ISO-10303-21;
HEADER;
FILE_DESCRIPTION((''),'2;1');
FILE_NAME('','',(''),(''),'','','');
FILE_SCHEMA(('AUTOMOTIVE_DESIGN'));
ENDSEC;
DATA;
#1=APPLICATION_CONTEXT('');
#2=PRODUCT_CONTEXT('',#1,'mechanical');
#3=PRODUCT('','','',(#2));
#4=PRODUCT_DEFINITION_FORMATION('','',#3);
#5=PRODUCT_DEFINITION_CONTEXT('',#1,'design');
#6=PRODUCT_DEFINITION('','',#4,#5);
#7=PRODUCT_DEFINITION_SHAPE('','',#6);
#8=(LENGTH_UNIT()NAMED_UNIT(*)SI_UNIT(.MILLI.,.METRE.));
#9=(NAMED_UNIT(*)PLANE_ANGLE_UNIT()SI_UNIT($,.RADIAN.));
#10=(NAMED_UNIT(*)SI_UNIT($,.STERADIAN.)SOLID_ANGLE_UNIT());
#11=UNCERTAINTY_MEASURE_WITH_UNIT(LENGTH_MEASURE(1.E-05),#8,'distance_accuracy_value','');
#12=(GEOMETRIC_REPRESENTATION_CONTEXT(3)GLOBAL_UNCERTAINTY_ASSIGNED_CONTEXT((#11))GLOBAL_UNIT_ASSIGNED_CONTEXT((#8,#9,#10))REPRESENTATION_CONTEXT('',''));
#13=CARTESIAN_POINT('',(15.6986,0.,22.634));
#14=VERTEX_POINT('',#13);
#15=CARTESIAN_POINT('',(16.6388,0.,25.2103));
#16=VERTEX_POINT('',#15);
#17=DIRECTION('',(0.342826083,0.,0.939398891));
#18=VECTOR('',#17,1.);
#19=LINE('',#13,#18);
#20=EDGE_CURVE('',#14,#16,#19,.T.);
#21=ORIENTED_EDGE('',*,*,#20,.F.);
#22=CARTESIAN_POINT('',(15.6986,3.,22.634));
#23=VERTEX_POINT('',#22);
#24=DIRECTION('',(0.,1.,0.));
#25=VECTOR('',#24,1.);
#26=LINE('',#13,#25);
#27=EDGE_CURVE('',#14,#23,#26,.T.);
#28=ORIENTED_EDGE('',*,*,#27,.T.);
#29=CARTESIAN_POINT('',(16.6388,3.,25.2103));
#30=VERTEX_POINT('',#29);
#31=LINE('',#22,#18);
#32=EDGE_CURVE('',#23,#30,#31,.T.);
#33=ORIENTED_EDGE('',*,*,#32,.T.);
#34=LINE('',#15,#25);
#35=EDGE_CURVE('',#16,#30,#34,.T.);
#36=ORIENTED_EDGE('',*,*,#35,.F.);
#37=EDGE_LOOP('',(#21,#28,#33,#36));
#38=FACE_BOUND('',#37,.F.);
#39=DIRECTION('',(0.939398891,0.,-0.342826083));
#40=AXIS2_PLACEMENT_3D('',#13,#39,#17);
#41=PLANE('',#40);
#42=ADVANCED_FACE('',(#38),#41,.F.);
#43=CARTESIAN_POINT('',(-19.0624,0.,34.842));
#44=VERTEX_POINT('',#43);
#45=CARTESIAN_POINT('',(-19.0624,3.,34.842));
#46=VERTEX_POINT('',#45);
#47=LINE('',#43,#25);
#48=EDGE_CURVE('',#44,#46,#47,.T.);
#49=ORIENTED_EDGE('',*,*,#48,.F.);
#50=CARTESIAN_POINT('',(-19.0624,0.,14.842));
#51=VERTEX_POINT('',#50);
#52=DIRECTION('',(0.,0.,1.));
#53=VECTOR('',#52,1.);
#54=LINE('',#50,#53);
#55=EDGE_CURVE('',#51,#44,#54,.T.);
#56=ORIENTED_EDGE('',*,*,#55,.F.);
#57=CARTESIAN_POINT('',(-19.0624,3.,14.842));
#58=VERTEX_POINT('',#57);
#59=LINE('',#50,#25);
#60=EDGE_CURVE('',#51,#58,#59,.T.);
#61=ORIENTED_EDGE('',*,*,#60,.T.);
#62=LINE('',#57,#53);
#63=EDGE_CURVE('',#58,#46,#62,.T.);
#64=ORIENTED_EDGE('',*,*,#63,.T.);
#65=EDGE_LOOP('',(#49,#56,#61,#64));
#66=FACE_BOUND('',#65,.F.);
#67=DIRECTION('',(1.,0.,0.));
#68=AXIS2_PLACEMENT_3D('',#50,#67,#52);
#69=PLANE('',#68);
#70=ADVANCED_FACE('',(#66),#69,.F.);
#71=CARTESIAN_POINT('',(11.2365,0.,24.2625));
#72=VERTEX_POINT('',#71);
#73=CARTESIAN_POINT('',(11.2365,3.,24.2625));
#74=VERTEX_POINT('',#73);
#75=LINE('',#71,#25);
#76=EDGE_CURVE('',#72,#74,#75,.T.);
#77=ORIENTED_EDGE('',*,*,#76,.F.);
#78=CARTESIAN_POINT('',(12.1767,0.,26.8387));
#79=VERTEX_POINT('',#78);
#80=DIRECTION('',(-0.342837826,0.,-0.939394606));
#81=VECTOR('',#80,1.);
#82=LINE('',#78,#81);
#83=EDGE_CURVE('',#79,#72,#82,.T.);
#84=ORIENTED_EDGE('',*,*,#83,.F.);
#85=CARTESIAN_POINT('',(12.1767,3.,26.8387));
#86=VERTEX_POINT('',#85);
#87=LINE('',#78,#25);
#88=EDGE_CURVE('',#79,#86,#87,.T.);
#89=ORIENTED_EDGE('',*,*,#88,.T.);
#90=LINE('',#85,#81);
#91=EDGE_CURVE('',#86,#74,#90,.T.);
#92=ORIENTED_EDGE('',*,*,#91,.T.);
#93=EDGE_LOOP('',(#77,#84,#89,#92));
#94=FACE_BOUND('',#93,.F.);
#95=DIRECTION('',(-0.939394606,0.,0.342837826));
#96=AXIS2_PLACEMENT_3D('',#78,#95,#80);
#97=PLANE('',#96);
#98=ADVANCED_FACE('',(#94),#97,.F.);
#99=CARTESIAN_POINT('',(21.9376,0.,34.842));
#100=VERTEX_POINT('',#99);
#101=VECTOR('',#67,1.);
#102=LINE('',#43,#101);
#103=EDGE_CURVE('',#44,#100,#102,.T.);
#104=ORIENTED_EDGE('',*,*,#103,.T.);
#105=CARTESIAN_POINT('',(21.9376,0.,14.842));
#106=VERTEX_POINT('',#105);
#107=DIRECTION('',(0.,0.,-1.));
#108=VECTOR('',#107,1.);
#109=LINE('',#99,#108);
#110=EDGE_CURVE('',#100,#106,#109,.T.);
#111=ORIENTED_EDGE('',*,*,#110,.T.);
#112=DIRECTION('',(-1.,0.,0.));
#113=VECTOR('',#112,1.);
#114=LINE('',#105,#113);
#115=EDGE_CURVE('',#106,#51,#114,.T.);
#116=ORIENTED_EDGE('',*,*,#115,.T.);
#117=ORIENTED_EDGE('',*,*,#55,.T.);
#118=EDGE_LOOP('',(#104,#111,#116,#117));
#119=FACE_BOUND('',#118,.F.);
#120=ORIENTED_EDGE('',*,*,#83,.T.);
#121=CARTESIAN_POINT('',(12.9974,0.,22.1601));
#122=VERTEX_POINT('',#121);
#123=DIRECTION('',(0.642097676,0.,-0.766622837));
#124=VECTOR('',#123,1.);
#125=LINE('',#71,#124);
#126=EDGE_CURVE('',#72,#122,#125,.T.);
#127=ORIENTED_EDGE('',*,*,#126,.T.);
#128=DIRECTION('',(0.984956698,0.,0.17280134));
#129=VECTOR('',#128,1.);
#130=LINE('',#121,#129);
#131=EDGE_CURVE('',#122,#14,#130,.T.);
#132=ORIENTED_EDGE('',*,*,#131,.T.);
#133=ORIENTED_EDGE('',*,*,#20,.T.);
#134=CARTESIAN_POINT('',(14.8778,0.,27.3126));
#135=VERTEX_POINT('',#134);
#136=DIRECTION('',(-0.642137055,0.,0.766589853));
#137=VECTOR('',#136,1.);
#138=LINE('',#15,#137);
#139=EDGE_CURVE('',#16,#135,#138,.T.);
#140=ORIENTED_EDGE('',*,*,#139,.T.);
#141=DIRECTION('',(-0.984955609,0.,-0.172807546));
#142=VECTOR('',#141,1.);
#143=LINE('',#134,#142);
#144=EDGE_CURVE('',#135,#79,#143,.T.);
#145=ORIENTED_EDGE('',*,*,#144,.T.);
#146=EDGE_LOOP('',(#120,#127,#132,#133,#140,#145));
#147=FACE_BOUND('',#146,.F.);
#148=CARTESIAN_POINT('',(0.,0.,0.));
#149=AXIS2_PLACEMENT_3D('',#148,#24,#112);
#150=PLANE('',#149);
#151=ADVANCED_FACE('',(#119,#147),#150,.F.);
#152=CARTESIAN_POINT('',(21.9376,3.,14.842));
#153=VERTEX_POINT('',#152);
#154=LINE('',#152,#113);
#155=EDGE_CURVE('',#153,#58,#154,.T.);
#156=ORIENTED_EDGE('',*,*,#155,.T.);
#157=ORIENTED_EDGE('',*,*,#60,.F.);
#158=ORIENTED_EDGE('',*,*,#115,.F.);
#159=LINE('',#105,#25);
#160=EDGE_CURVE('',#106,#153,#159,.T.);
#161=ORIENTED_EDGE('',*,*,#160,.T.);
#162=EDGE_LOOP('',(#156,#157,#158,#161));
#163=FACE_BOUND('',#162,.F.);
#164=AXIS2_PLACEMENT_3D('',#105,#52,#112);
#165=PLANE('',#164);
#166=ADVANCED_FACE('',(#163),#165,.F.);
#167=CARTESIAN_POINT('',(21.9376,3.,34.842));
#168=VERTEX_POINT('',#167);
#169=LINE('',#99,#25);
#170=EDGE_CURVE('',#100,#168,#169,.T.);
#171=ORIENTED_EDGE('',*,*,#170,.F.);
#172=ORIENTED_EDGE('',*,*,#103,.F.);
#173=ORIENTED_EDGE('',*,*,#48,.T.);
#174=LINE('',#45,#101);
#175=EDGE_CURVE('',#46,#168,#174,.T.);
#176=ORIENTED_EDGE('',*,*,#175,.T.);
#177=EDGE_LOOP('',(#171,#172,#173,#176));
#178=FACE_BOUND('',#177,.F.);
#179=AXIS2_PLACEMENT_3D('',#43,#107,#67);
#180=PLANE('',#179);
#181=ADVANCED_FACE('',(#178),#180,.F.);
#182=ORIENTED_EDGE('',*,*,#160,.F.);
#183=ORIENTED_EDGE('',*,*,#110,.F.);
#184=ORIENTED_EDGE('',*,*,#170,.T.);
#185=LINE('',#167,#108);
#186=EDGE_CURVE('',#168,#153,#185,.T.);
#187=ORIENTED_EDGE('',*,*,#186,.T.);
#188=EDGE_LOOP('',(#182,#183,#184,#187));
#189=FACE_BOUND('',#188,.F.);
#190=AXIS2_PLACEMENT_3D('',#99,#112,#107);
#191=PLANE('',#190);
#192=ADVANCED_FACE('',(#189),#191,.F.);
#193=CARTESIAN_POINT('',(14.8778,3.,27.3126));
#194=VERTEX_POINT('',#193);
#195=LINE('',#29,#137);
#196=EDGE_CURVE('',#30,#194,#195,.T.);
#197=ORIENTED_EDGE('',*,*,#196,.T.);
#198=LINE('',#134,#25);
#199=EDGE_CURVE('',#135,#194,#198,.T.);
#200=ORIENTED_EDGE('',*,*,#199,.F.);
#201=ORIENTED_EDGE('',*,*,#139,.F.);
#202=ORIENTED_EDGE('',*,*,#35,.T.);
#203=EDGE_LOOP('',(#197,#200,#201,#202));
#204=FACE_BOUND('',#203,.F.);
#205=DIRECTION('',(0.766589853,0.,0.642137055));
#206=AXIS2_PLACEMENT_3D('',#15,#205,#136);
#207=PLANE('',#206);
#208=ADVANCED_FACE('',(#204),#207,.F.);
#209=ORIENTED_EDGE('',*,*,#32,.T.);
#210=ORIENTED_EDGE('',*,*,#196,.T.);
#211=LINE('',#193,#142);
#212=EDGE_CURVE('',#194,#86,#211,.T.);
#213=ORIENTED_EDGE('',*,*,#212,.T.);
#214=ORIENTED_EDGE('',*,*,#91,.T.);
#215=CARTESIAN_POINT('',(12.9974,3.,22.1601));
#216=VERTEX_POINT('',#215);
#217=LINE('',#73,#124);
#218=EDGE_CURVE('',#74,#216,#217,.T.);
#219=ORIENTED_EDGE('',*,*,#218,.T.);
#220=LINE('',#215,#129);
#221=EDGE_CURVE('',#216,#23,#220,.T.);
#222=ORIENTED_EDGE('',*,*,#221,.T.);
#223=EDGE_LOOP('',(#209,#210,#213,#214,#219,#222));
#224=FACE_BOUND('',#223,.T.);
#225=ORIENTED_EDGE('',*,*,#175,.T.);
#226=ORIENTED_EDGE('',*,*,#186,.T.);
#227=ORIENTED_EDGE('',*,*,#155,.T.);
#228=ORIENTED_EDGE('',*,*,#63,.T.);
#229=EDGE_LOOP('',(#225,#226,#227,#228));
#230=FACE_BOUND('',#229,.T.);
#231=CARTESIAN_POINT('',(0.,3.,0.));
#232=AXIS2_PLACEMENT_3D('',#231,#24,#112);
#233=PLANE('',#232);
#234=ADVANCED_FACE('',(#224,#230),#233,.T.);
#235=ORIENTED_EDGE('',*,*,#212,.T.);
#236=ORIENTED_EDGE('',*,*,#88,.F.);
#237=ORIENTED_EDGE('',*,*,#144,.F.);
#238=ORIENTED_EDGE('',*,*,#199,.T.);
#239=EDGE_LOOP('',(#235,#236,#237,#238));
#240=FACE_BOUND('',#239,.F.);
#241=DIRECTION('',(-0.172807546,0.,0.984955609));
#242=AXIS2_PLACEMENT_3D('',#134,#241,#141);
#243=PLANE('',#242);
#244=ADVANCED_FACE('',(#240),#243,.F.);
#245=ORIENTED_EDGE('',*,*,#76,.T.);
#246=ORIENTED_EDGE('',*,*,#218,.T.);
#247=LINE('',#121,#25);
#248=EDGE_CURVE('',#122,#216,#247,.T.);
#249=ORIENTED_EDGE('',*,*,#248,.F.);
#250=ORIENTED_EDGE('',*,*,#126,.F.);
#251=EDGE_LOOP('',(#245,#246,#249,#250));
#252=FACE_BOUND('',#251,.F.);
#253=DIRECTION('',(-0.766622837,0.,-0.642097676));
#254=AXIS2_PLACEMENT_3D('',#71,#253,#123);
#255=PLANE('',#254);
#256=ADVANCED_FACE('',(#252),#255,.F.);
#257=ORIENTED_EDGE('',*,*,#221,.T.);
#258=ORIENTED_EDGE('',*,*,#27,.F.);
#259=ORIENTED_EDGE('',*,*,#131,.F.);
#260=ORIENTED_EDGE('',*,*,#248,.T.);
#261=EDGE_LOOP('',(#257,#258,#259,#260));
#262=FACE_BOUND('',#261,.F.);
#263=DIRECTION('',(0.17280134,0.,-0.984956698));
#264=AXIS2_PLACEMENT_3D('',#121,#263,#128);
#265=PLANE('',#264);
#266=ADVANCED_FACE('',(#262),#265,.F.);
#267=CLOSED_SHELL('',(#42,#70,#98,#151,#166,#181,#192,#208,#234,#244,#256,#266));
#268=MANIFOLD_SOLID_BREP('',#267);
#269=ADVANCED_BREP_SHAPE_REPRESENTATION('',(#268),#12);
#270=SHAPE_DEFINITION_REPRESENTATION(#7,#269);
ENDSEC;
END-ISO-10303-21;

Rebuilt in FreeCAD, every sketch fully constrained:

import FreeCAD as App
import Part
import Sketcher
from FreeCAD import Vector
Q = App.Units.Quantity

doc = App.newDocument("Part")
body = doc.addObject("PartDesign::Body", "Body")

# Sketch on XZ plane
sketch1 = body.newObject("Sketcher::SketchObject", "Sketch")
sketch1.AttachmentSupport = (doc.getObject("XZ_Plane"), [""])
sketch1.MapMode = "FlatFace"
sketch1.addGeometry([
    Part.LineSegment(Vector(-19.1, 14.8, 0), Vector(-19.1, 34.8, 0)),  # 0
    Part.LineSegment(Vector(-19.1, 34.8, 0), Vector(21.9, 34.8, 0)),  # 1
    Part.LineSegment(Vector(21.9, 34.8, 0), Vector(21.9, 14.8, 0)),  # 2
    Part.LineSegment(Vector(21.9, 14.8, 0), Vector(-19.1, 14.8, 0)),  # 3
    Part.LineSegment(Vector(12.2, 26.8, 0), Vector(11.2, 24.3, 0)),  # 4
    Part.LineSegment(Vector(11.2, 24.3, 0), Vector(13, 22.2, 0)),  # 5
    Part.LineSegment(Vector(13, 22.2, 0), Vector(15.7, 22.6, 0)),  # 6
    Part.LineSegment(Vector(15.7, 22.6, 0), Vector(16.6, 25.2, 0)),  # 7
    Part.LineSegment(Vector(16.6, 25.2, 0), Vector(14.9, 27.3, 0)),  # 8
    Part.LineSegment(Vector(14.9, 27.3, 0), Vector(12.2, 26.8, 0)),  # 9
], False)
sketch1.addConstraint([
    Sketcher.Constraint("Coincident", 0, 2, 1, 1),
    Sketcher.Constraint("Coincident", 1, 2, 2, 1),
    Sketcher.Constraint("Coincident", 2, 2, 3, 1),
    Sketcher.Constraint("Coincident", 3, 2, 0, 1),
    Sketcher.Constraint("Coincident", 4, 2, 5, 1),
    Sketcher.Constraint("Coincident", 5, 2, 6, 1),
    Sketcher.Constraint("Coincident", 6, 2, 7, 1),
    Sketcher.Constraint("Coincident", 7, 2, 8, 1),
    Sketcher.Constraint("Coincident", 8, 2, 9, 1),
    Sketcher.Constraint("Coincident", 9, 2, 4, 1),
    Sketcher.Constraint("Vertical", 0),
    Sketcher.Constraint("Horizontal", 1),
    Sketcher.Constraint("Vertical", 2),
    Sketcher.Constraint("Horizontal", 3),
    Sketcher.Constraint("Parallel", 4, 7),
    Sketcher.Constraint("Parallel", 5, 8),
    Sketcher.Constraint("Parallel", 6, 9),
    Sketcher.Constraint("Equal", 4, 5),
    Sketcher.Constraint("Equal", 5, 6),
    Sketcher.Constraint("Equal", 6, 7),
    Sketcher.Constraint("DistanceX", 1, 1, 1, 2, 41.0),
    Sketcher.Constraint("DistanceY", 0, 1, 0, 2, 20.0),
    Sketcher.Constraint("Angle", 4, Q("-110.0499 deg")),
    Sketcher.Constraint("Angle", 6, Q("9.9507 deg")),
    Sketcher.Constraint("DistanceY", -1, 1, 5, 2, 22.16),
    Sketcher.Constraint("DistanceY", 4, 2, 8, 2, 3.05),
    Sketcher.Constraint("DistanceY", -1, 1, 0, 2, 34.842),
    Sketcher.Constraint("DistanceX", 4, 2, 2, 2, 10.701),
    Sketcher.Constraint("DistanceX", 4, 2, 5, 2, 1.761),
    Sketcher.Constraint("DistanceX", 0, 2, -1, 1, 19.0624),
])
pad1 = body.newObject("PartDesign::Pad", "Pad")
pad1.Profile = sketch1
pad1.Length = 3
pad1.Reversed = True

doc.recompute()
